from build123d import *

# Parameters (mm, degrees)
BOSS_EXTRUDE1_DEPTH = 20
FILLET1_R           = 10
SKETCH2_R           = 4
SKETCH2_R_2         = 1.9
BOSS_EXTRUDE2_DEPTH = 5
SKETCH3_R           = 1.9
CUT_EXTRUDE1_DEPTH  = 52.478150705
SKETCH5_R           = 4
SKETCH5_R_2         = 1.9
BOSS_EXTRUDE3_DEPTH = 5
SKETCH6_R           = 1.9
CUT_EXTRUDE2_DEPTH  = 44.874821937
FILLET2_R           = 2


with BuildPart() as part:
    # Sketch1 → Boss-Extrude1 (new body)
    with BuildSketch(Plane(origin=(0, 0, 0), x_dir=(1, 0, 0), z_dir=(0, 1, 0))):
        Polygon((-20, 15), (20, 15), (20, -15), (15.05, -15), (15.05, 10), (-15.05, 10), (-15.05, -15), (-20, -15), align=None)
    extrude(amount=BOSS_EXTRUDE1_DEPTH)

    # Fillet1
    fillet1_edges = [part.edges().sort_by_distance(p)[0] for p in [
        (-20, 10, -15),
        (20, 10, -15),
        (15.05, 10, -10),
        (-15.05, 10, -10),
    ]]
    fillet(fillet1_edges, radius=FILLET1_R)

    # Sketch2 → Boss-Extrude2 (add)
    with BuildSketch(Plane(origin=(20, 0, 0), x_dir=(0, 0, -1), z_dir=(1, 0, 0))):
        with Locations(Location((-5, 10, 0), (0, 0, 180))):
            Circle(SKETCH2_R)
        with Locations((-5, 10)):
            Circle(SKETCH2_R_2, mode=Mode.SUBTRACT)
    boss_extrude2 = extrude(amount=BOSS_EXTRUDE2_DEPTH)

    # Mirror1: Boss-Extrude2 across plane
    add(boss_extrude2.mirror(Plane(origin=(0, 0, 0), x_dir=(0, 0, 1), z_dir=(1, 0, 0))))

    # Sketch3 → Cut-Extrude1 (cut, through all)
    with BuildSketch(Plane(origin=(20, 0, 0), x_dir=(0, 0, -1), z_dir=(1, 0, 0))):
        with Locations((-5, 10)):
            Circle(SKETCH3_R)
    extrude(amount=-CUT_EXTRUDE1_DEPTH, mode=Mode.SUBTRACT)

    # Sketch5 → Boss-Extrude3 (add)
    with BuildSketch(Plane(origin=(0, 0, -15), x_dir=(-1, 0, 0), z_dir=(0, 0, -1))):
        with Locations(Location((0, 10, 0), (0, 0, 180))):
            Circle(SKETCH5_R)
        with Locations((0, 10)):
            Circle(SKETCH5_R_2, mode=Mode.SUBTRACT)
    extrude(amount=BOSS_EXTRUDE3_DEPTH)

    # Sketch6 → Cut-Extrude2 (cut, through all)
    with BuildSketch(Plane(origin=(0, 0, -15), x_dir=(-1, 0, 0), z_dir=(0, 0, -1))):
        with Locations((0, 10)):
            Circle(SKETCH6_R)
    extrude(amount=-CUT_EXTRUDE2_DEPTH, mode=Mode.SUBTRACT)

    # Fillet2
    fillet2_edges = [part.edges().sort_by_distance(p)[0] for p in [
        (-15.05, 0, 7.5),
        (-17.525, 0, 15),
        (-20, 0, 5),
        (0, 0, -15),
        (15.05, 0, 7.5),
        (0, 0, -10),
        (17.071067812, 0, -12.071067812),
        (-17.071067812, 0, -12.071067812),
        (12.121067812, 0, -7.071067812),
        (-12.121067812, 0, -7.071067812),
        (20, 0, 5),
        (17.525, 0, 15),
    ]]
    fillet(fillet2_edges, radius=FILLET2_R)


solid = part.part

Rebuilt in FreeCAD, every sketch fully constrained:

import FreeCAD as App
import Part
import Sketcher

V = App.Vector


def edges_at(feature, points):
    """Names of the edges that pass closest to the given points."""
    edges = feature.Shape.Edges
    near = lambda p: min(range(len(edges)), key=lambda i: edges[i].distToShape(Part.Vertex(*p))[0])
    return sorted({f"Edge{near(p) + 1}" for p in points})


def add_polygon(sketch, points):
    """Adds a closed chain of lines whose ends are joined by coincident constraints."""
    first, n = sketch.GeometryCount, len(points)
    for a, b in zip(points, points[1:] + points[:1]):
        sketch.addGeometry(Part.LineSegment(App.Vector(*a, 0), App.Vector(*b, 0)), False)
    for i in range(n):
        sketch.addConstraint(Sketcher.Constraint("Coincident", first + i, 2, first + (i + 1) % n, 1))

doc = App.newDocument("Part")
body = doc.addObject("PartDesign::Body", "Body")

# Sketch on XZ plane
sketch1 = body.newObject("Sketcher::SketchObject", "Sketch")
sketch1.AttachmentSupport = (doc.getObject("XZ_Plane"), [""])
sketch1.MapMode = "FlatFace"
add_polygon(sketch1, [(20, -15), (-20, -15), (-20, 15), (-15.1, 15), (-15.1, -10), (15.1, -10), (15.1, 15), (20, 15)])  # lines 0-7
sketch1.addConstraint([
    Sketcher.Constraint("Horizontal", 0),
    Sketcher.Constraint("Vertical", 1),
    Sketcher.Constraint("Horizontal", 2),
    Sketcher.Constraint("Vertical", 3),
    Sketcher.Constraint("Horizontal", 4),
    Sketcher.Constraint("Vertical", 5),
    Sketcher.Constraint("Horizontal", 6),
    Sketcher.Constraint("Vertical", 7),
    Sketcher.Constraint("Symmetric", 0, 2, 6, 2, -1, 1),
    Sketcher.Constraint("Symmetric", 2, 2, 5, 2, -2),
    Sketcher.Constraint("DistanceX", 0, 2, 0, 1, 40.0),
    Sketcher.Constraint("DistanceY", 1, 1, 1, 2, 30.0),
    Sketcher.Constraint("DistanceY", 3, 2, 3, 1, 25.0),
    Sketcher.Constraint("DistanceX", 4, 1, 4, 2, 30.1),
])
pad1 = body.newObject("PartDesign::Pad", "Pad")
pad1.Profile = sketch1
pad1.Length = 20
pad1.Reversed = True
doc.recompute()

fillet = body.newObject("PartDesign::Fillet", "Fillet")
fillet.Base = (pad1, edges_at(pad1, [
    (-20, 10, -15),
    (20, 10, -15),
    (15.05, 10, -10),
    (-15.05, 10, -10),
]))
fillet.Radius = 10

# Sketch on YZ plane
sketch2 = body.newObject("Sketcher::SketchObject", "Sketch001")
sketch2.AttachmentSupport = (doc.getObject("YZ_Plane"), [""])
sketch2.MapMode = "FlatFace"
sketch2.AttachmentOffset = App.Placement(V(0, 0, 20), App.Rotation())
sketch2.addGeometry([
    Part.Circle(V(10, 5, 0), V(0, 0, 1), 4),
    Part.Circle(V(10, 5, 0), V(0, 0, 1), 1.9),
], False)
sketch2.addConstraint([
    Sketcher.Constraint("Coincident", 1, 3, 0, 3),
    Sketcher.Constraint("Diameter", 0, 8.0),
    Sketcher.Constraint("Diameter", 1, 3.8),
    Sketcher.Constraint("DistanceX", -1, 1, 0, 3, 10.0),
    Sketcher.Constraint("DistanceY", -1, 1, 0, 3, 5.0),
])
pad2 = body.newObject("PartDesign::Pad", "Pad001")
pad2.Profile = sketch2
pad2.Length = 5
doc.recompute()

mirrored = body.newObject("PartDesign::Mirrored", "Mirrored")
mirrored.Originals = [pad2]
mirrored.MirrorPlane = (doc.getObject("YZ_Plane"), [""])
body.Tip = mirrored

# Sketch on YZ plane
sketch3 = body.newObject("Sketcher::SketchObject", "Sketch002")
sketch3.AttachmentSupport = (doc.getObject("YZ_Plane"), [""])
sketch3.MapMode = "FlatFace"
sketch3.AttachmentOffset = App.Placement(V(0, 0, 20), App.Rotation())
sketch3.addGeometry(Part.Circle(V(10, 5, 0), V(0, 0, 1), 1.9), False)
sketch3.addConstraint([
    Sketcher.Constraint("Diameter", 0, 3.8),
    Sketcher.Constraint("DistanceX", -1, 1, 0, 3, 10.0),
    Sketcher.Constraint("DistanceY", -1, 1, 0, 3, 5.0),
])
pocket1 = body.newObject("PartDesign::Pocket", "Pocket")
pocket1.Profile = sketch3
pocket1.Type = "ThroughAll"

# Sketch on XY plane
sketch4 = body.newObject("Sketcher::SketchObject", "Sketch003")
sketch4.AttachmentSupport = (doc.getObject("XY_Plane"), [""])
sketch4.MapMode = "FlatFace"
sketch4.AttachmentOffset = App.Placement(V(0, 0, -15), App.Rotation())
sketch4.addGeometry([
    Part.Circle(V(0, 10, 0), V(0, 0, 1), 4),
    Part.Circle(V(0, 10, 0), V(0, 0, 1), 1.9),
], False)
sketch4.addConstraint([
    Sketcher.Constraint("Coincident", 1, 3, 0, 3),
    Sketcher.Constraint("PointOnObject", 0, 3, -2),
    Sketcher.Constraint("Diameter", 0, 8.0),
    Sketcher.Constraint("Diameter", 1, 3.8),
    Sketcher.Constraint("DistanceY", -1, 1, 0, 3, 10.0),
])
pad3 = body.newObject("PartDesign::Pad", "Pad002")
pad3.Profile = sketch4
pad3.Length = 5
pad3.Reversed = True

# Sketch on XY plane
sketch5 = body.newObject("Sketcher::SketchObject", "Sketch004")
sketch5.AttachmentSupport = (doc.getObject("XY_Plane"), [""])
sketch5.MapMode = "FlatFace"
sketch5.AttachmentOffset = App.Placement(V(0, 0, -15), App.Rotation())
sketch5.addGeometry(Part.Circle(V(0, 10, 0), V(0, 0, 1), 1.9), False)
sketch5.addConstraint([
    Sketcher.Constraint("PointOnObject", 0, 3, -2),
    Sketcher.Constraint("Diameter", 0, 3.8),
    Sketcher.Constraint("DistanceY", -1, 1, 0, 3, 10.0),
])
pocket2 = body.newObject("PartDesign::Pocket", "Pocket001")
pocket2.Profile = sketch5
pocket2.Type = "ThroughAll"
pocket2.Reversed = True
doc.recompute()

fillet2 = body.newObject("PartDesign::Fillet", "Fillet001")
fillet2.Base = (pocket2, edges_at(pocket2, [
    (-15.05, 0, 7.5),
    (-17.525, 0, 15),
    (-20, 0, 5),
    (0, 0, -15),
    (15.05, 0, 7.5),
    (0, 0, -10),
    (17.071, 0, -12.071),
    (-17.071, 0, -12.071),
    (12.121, 0, -7.071),
    (-12.121, 0, -7.071),
    (20, 0, 5),
    (17.525, 0, 15),
]))
fillet2.Radius = 2

doc.recompute()
